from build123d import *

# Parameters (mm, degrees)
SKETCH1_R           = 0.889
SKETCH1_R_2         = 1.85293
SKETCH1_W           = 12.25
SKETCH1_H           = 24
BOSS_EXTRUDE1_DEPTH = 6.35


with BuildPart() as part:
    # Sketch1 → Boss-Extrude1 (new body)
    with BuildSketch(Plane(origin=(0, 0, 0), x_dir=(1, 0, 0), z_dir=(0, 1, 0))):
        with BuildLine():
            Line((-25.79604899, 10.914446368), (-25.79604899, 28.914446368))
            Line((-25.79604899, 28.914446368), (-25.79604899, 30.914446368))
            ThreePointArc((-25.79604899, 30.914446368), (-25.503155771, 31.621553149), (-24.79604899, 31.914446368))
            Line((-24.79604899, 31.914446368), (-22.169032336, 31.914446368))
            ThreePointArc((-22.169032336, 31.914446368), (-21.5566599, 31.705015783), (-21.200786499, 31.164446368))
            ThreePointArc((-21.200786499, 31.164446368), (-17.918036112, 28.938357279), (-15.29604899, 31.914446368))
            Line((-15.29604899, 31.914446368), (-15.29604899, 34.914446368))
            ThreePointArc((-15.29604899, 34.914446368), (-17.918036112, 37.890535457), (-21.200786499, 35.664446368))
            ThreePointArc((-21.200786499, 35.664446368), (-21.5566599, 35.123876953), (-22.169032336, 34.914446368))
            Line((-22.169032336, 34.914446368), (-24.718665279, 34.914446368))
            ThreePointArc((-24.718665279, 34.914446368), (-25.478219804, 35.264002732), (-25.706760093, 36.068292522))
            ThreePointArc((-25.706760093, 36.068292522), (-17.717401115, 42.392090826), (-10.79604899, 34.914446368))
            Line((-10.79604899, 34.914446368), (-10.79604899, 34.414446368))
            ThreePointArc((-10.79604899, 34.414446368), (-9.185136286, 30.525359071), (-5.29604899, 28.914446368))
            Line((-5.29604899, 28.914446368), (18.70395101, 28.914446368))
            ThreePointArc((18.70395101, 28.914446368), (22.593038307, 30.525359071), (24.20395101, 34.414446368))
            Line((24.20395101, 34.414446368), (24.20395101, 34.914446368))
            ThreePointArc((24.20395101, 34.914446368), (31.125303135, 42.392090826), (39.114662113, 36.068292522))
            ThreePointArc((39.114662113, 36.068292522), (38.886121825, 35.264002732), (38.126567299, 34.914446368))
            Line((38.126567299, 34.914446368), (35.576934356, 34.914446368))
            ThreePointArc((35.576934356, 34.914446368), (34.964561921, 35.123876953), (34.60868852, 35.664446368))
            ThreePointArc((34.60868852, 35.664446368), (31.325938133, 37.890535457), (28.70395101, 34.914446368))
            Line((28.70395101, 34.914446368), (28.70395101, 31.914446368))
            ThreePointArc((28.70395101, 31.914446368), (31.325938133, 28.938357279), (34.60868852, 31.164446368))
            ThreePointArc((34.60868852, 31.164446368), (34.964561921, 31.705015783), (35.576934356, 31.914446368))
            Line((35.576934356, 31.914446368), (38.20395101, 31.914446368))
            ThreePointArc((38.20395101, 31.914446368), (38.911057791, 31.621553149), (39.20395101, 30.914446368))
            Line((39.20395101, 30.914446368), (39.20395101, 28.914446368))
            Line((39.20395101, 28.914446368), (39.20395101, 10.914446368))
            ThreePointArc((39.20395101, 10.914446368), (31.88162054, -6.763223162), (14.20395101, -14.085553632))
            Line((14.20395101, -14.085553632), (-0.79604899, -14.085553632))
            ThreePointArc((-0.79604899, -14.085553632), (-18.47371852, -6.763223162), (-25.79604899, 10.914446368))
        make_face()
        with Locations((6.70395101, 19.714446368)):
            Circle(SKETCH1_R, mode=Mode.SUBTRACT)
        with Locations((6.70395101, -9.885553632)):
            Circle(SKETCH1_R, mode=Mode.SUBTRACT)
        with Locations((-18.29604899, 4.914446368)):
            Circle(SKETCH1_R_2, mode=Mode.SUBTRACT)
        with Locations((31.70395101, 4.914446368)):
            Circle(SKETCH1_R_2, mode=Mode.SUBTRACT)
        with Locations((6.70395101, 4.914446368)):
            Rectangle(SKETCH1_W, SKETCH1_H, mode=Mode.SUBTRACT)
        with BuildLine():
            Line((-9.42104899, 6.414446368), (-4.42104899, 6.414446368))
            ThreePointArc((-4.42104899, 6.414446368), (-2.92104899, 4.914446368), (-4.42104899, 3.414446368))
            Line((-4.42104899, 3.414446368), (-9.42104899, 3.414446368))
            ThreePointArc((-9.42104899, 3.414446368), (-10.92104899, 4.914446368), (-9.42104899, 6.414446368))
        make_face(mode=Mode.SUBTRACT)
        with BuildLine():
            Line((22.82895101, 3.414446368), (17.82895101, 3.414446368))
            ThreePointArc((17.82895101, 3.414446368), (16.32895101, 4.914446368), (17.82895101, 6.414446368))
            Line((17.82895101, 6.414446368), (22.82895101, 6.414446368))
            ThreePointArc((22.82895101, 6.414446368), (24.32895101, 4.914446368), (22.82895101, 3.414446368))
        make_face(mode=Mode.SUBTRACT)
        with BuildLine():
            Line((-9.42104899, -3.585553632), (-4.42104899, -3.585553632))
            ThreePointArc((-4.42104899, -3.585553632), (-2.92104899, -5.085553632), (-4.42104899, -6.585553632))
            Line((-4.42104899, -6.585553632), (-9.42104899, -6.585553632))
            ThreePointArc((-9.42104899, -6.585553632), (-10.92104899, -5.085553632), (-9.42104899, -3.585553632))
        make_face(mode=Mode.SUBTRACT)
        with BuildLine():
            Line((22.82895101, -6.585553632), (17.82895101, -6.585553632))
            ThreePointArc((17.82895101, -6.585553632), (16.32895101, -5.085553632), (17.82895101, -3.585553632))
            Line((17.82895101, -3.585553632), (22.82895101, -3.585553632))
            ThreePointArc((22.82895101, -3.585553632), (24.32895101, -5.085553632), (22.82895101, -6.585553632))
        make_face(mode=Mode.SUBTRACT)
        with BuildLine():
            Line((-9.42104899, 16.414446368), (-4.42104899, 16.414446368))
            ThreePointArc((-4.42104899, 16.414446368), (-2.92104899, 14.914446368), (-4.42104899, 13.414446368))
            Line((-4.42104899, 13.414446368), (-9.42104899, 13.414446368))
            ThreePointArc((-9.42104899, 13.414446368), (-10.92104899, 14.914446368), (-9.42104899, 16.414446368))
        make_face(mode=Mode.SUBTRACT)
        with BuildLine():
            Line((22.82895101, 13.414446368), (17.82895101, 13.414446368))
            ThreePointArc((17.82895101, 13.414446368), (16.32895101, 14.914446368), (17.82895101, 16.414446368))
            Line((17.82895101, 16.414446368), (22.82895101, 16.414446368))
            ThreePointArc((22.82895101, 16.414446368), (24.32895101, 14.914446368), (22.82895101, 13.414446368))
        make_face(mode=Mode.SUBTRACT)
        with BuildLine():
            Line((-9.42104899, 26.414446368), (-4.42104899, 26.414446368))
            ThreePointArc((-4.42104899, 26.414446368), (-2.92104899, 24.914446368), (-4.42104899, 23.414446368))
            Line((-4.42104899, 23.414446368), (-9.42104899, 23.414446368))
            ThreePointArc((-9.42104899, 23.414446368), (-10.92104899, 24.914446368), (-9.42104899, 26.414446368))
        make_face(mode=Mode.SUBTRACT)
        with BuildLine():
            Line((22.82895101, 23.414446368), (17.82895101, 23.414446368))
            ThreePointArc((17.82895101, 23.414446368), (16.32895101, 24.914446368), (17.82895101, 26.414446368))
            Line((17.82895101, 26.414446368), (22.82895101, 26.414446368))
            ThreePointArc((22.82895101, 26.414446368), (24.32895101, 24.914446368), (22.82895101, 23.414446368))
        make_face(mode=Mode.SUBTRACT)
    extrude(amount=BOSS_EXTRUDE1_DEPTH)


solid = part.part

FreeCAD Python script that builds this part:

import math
import FreeCAD as App
import Part
import Sketcher

V = App.Vector
Q = App.Units.Quantity


def add_polygon(sketch, points):
    """Adds a closed chain of lines whose ends are joined by coincident constraints."""
    first, n = sketch.GeometryCount, len(points)
    for a, b in zip(points, points[1:] + points[:1]):
        sketch.addGeometry(Part.LineSegment(App.Vector(*a, 0), App.Vector(*b, 0)), False)
    for i in range(n):
        sketch.addConstraint(Sketcher.Constraint("Coincident", first + i, 2, first + (i + 1) % n, 1))

doc = App.newDocument("Part")
body = doc.addObject("PartDesign::Body", "Body")

# Sketch on XZ plane
sketch1 = body.newObject("Sketcher::SketchObject", "Sketch")
sketch1.AttachmentSupport = (doc.getObject("XZ_Plane"), [""])
sketch1.MapMode = "FlatFace"
sketch1.addGeometry(Part.LineSegment(V(-25.8, -30.9, 0), V(-25.8, -10.9, 0)), False)  # 0
sketch1.addGeometry(Part.ArcOfCircle(Part.Circle(V(-0.8, -10.9, 0), V(0, 0, 1), 25), math.radians(90), math.radians(180)), False)  # 1
sketch1.addGeometry(Part.LineSegment(V(-0.8, 14.1, 0), V(14.2, 14.1, 0)), False)  # 2
sketch1.addGeometry(Part.ArcOfCircle(Part.Circle(V(14.2, -10.9, 0), V(0, 0, 1), 25), math.radians(0), math.radians(90)), False)  # 3
sketch1.addGeometry(Part.LineSegment(V(39.2, -10.9, 0), V(39.2, -30.9, 0)), False)  # 4
sketch1.addGeometry(Part.ArcOfCircle(Part.Circle(V(38.2, -30.9, 0), V(0, 0, 1), 1), math.radians(-90), math.radians(0)), False)  # 5
sketch1.addGeometry(Part.LineSegment(V(38.2, -31.9, 0), V(35.6, -31.9, 0)), False)  # 6
sketch1.addGeometry(Part.ArcOfCircle(Part.Circle(V(35.6, -30.9, 0), V(0, 0, 1), 1), math.radians(-166), math.radians(-90)), False)  # 7
sketch1.addGeometry(Part.ArcOfCircle(Part.Circle(V(31.7, -31.9, 0), V(0, 0, 1), 3), math.radians(14), math.radians(180)), False)  # 8
sketch1.addGeometry(Part.LineSegment(V(28.7, -31.9, 0), V(28.7, -34.9, 0)), False)  # 9
sketch1.addGeometry(Part.ArcOfCircle(Part.Circle(V(31.7, -34.9, 0), V(0, 0, 1), 3), math.radians(180), math.radians(346)), False)  # 10
sketch1.addGeometry(Part.ArcOfCircle(Part.Circle(V(35.6, -35.9, 0), V(0, 0, 1), 1), math.radians(90), math.radians(166)), False)  # 11
sketch1.addGeometry(Part.LineSegment(V(35.6, -34.9, 0), V(38.1, -34.9, 0)), False)  # 12
sketch1.addGeometry(Part.ArcOfCircle(Part.Circle(V(38.1, -35.9, 0), V(0, 0, 1), 1), math.radians(-9), math.radians(90)), False)  # 13
sketch1.addGeometry(Part.ArcOfCircle(Part.Circle(V(31.7, -34.9, 0), V(0, 0, 1), 7.5), math.radians(180), math.radians(351)), False)  # 14
sketch1.addGeometry(Part.LineSegment(V(24.2, -34.9, 0), V(24.2, -34.4, 0)), False)  # 15
sketch1.addGeometry(Part.ArcOfCircle(Part.Circle(V(18.7, -34.4, 0), V(0, 0, 1), 5.5), math.radians(0), math.radians(90)), False)  # 16
sketch1.addGeometry(Part.LineSegment(V(18.7, -28.9, 0), V(-5.3, -28.9, 0)), False)  # 17
sketch1.addGeometry(Part.ArcOfCircle(Part.Circle(V(-5.3, -34.4, 0), V(0, 0, 1), 5.5), math.radians(90), math.radians(180)), False)  # 18
sketch1.addGeometry(Part.LineSegment(V(-10.8, -34.4, 0), V(-10.8, -34.9, 0)), False)  # 19
sketch1.addGeometry(Part.ArcOfCircle(Part.Circle(V(-18.3, -34.9, 0), V(0, 0, 1), 7.5), math.radians(-171), math.radians(0)), False)  # 20
sketch1.addGeometry(Part.ArcOfCircle(Part.Circle(V(-24.7, -35.9, 0), V(0, 0, 1), 1), math.radians(90), math.radians(189)), False)  # 21
sketch1.addGeometry(Part.LineSegment(V(-24.7, -34.9, 0), V(-22.2, -34.9, 0)), False)  # 22
sketch1.addGeometry(Part.ArcOfCircle(Part.Circle(V(-22.2, -35.9, 0), V(0, 0, 1), 1), math.radians(14), math.radians(90)), False)  # 23
sketch1.addGeometry(Part.ArcOfCircle(Part.Circle(V(-18.3, -34.9, 0), V(0, 0, 1), 3), math.radians(-166), math.radians(0)), False)  # 24
sketch1.addGeometry(Part.LineSegment(V(-15.3, -34.9, 0), V(-15.3, -31.9, 0)), False)  # 25
sketch1.addGeometry(Part.ArcOfCircle(Part.Circle(V(-18.3, -31.9, 0), V(0, 0, 1), 3), math.radians(0), math.radians(166)), False)  # 26
sketch1.addGeometry(Part.ArcOfCircle(Part.Circle(V(-22.2, -30.9, 0), V(0, 0, 1), 1), math.radians(-90), math.radians(-14)), False)  # 27
sketch1.addGeometry(Part.LineSegment(V(-22.2, -31.9, 0), V(-24.8, -31.9, 0)), False)  # 28
sketch1.addGeometry(Part.ArcOfCircle(Part.Circle(V(-24.8, -30.9, 0), V(0, 0, 1), 1), math.radians(-180), math.radians(-90)), False)  # 29
sketch1.addGeometry(Part.LineSegment(V(22.8, 6.6, 0), V(17.8, 6.6, 0)), False)  # 30
sketch1.addGeometry(Part.ArcOfCircle(Part.Circle(V(17.8, 5.1, 0), V(0, 0, 1), 1.5), math.radians(90), math.radians(270)), False)  # 31
sketch1.addGeometry(Part.LineSegment(V(17.8, 3.6, 0), V(22.8, 3.6, 0)), False)  # 32
sketch1.addGeometry(Part.ArcOfCircle(Part.Circle(V(22.8, 5.1, 0), V(0, 0, 1), 1.5), math.radians(-90), math.radians(90)), False)  # 33
sketch1.addGeometry(Part.Circle(V(6.7, 9.9, 0), V(0, 0, 1), 0.9), False)  # 34
sketch1.addGeometry(Part.Circle(V(31.7, -4.9, 0), V(0, 0, 1), 1.9), False)  # 35
sketch1.addGeometry(Part.LineSegment(V(22.8, -3.4, 0), V(17.8, -3.4, 0)), False)  # 36
sketch1.addGeometry(Part.ArcOfCircle(Part.Circle(V(17.8, -4.9, 0), V(0, 0, 1), 1.5), math.radians(90), math.radians(270)), False)  # 37
sketch1.addGeometry(Part.LineSegment(V(17.8, -6.4, 0), V(22.8, -6.4, 0)), False)  # 38
sketch1.addGeometry(Part.ArcOfCircle(Part.Circle(V(22.8, -4.9, 0), V(0, 0, 1), 1.5), math.radians(-90), math.radians(90)), False)  # 39
add_polygon(sketch1, [(0.6, 7.1), (0.6, -16.9), (12.8, -16.9), (12.8, 7.1)])  # lines 40-43
sketch1.addGeometry(Part.LineSegment(V(-9.4, 3.6, 0), V(-4.4, 3.6, 0)), False)  # 44
sketch1.addGeometry(Part.ArcOfCircle(Part.Circle(V(-4.4, 5.1, 0), V(0, 0, 1), 1.5), math.radians(-90), math.radians(90)), False)  # 45
sketch1.addGeometry(Part.LineSegment(V(-4.4, 6.6, 0), V(-9.4, 6.6, 0)), False)  # 46
sketch1.addGeometry(Part.ArcOfCircle(Part.Circle(V(-9.4, 5.1, 0), V(0, 0, 1), 1.5), math.radians(90), math.radians(270)), False)  # 47
sketch1.addGeometry(Part.LineSegment(V(-9.4, -6.4, 0), V(-4.4, -6.4, 0)), False)  # 48
sketch1.addGeometry(Part.ArcOfCircle(Part.Circle(V(-4.4, -4.9, 0), V(0, 0, 1), 1.5), math.radians(-90), math.radians(90)), False)  # 49
sketch1.addGeometry(Part.LineSegment(V(-4.4, -3.4, 0), V(-9.4, -3.4, 0)), False)  # 50
sketch1.addGeometry(Part.ArcOfCircle(Part.Circle(V(-9.4, -4.9, 0), V(0, 0, 1), 1.5), math.radians(90), math.radians(270)), False)  # 51
sketch1.addGeometry(Part.Circle(V(-18.3, -4.9, 0), V(0, 0, 1), 1.9), False)  # 52
sketch1.addGeometry(Part.LineSegment(V(22.8, -13.4, 0), V(17.8, -13.4, 0)), False)  # 53
sketch1.addGeometry(Part.ArcOfCircle(Part.Circle(V(17.8, -14.9, 0), V(0, 0, 1), 1.5), math.radians(90), math.radians(270)), False)  # 54
sketch1.addGeometry(Part.LineSegment(V(17.8, -16.4, 0), V(22.8, -16.4, 0)), False)  # 55
sketch1.addGeometry(Part.ArcOfCircle(Part.Circle(V(22.8, -14.9, 0), V(0, 0, 1), 1.5), math.radians(-90), math.radians(90)), False)  # 56
sketch1.addGeometry(Part.LineSegment(V(22.8, -23.4, 0), V(17.8, -23.4, 0)), False)  # 57
sketch1.addGeometry(Part.ArcOfCircle(Part.Circle(V(17.8, -24.9, 0), V(0, 0, 1), 1.5), math.radians(90), math.radians(270)), False)  # 58
sketch1.addGeometry(Part.LineSegment(V(17.8, -26.4, 0), V(22.8, -26.4, 0)), False)  # 59
sketch1.addGeometry(Part.ArcOfCircle(Part.Circle(V(22.8, -24.9, 0), V(0, 0, 1), 1.5), math.radians(-90), math.radians(90)), False)  # 60
sketch1.addGeometry(Part.Circle(V(6.7, -19.7, 0), V(0, 0, 1), 0.9), False)  # 61
sketch1.addGeometry(Part.LineSegment(V(-9.4, -16.4, 0), V(-4.4, -16.4, 0)), False)  # 62
sketch1.addGeometry(Part.ArcOfCircle(Part.Circle(V(-4.4, -14.9, 0), V(0, 0, 1), 1.5), math.radians(-90), math.radians(90)), False)  # 63
sketch1.addGeometry(Part.LineSegment(V(-4.4, -13.4, 0), V(-9.4, -13.4, 0)), False)  # 64
sketch1.addGeometry(Part.ArcOfCircle(Part.Circle(V(-9.4, -14.9, 0), V(0, 0, 1), 1.5), math.radians(90), math.radians(270)), False)  # 65
sketch1.addGeometry(Part.LineSegment(V(-9.4, -26.4, 0), V(-4.4, -26.4, 0)), False)  # 66
sketch1.addGeometry(Part.ArcOfCircle(Part.Circle(V(-4.4, -24.9, 0), V(0, 0, 1), 1.5), math.radians(-90), math.radians(90)), False)  # 67
sketch1.addGeometry(Part.LineSegment(V(-4.4, -23.4, 0), V(-9.4, -23.4, 0)), False)  # 68
sketch1.addGeometry(Part.ArcOfCircle(Part.Circle(V(-9.4, -24.9, 0), V(0, 0, 1), 1.5), math.radians(90), math.radians(270)), False)  # 69
sketch1.addConstraint([
    Sketcher.Constraint("Tangent", 0, 2, 1, 2),
    Sketcher.Constraint("Tangent", 1, 1, 2, 1),
    Sketcher.Constraint("Tangent", 2, 2, 3, 2),
    Sketcher.Constraint("Tangent", 3, 1, 4, 1),
    Sketcher.Constraint("Tangent", 4, 2, 5, 2),
    Sketcher.Constraint("Tangent", 5, 1, 6, 1),
    Sketcher.Constraint("Tangent", 6, 2, 7, 2),
    Sketcher.Constraint("Tangent", 7, 1, 8, 1),
    Sketcher.Constraint("Tangent", 8, 2, 9, 1),
    Sketcher.Constraint("Tangent", 9, 2, 10, 1),
    Sketcher.Constraint("Tangent", 10, 2, 11, 2),
    Sketcher.Constraint("Tangent", 11, 1, 12, 1),
    Sketcher.Constraint("Tangent", 12, 2, 13, 2),
    Sketcher.Constraint("Tangent", 13, 1, 14, 2),
    Sketcher.Constraint("Tangent", 14, 1, 15, 1),
    Sketcher.Constraint("Tangent", 15, 2, 16, 1),
    Sketcher.Constraint("Tangent", 16, 2, 17, 1),
    Sketcher.Constraint("Tangent", 17, 2, 18, 1),
    Sketcher.Constraint("Tangent", 18, 2, 19, 1),
    Sketcher.Constraint("Tangent", 19, 2, 20, 2),
    Sketcher.Constraint("Tangent", 20, 1, 21, 2),
    Sketcher.Constraint("Tangent", 21, 1, 22, 1),
    Sketcher.Constraint("Tangent", 22, 2, 23, 2),
    Sketcher.Constraint("Tangent", 23, 1, 24, 1),
    Sketcher.Constraint("Tangent", 24, 2, 25, 1),
    Sketcher.Constraint("Tangent", 25, 2, 26, 1),
    Sketcher.Constraint("Tangent", 26, 2, 27, 2),
    Sketcher.Constraint("Tangent", 27, 1, 28, 1),
    Sketcher.Constraint("Tangent", 28, 2, 29, 2),
    Sketcher.Constraint("Tangent", 29, 1, 0, 1),
    Sketcher.Constraint("Tangent", 30, 2, 31, 1),
    Sketcher.Constraint("Tangent", 31, 2, 32, 1),
    Sketcher.Constraint("Tangent", 32, 2, 33, 1),
    Sketcher.Constraint("Tangent", 33, 2, 30, 1),
    Sketcher.Constraint("Tangent", 36, 2, 37, 1),
    Sketcher.Constraint("Tangent", 37, 2, 38, 1),
    Sketcher.Constraint("Tangent", 38, 2, 39, 1),
    Sketcher.Constraint("Tangent", 39, 2, 36, 1),
    Sketcher.Constraint("Tangent", 44, 2, 45, 1),
    Sketcher.Constraint("Tangent", 45, 2, 46, 1),
    Sketcher.Constraint("Tangent", 46, 2, 47, 1),
    Sketcher.Constraint("Tangent", 47, 2, 44, 1),
    Sketcher.Constraint("Tangent", 48, 2, 49, 1),
    Sketcher.Constraint("Tangent", 49, 2, 50, 1),
    Sketcher.Constraint("Tangent", 50, 2, 51, 1),
    Sketcher.Constraint("Tangent", 51, 2, 48, 1),
    Sketcher.Constraint("Tangent", 53, 2, 54, 1),
    Sketcher.Constraint("Tangent", 54, 2, 55, 1),
    Sketcher.Constraint("Tangent", 55, 2, 56, 1),
    Sketcher.Constraint("Tangent", 56, 2, 53, 1),
    Sketcher.Constraint("Tangent", 57, 2, 58, 1),
    Sketcher.Constraint("Tangent", 58, 2, 59, 1),
    Sketcher.Constraint("Tangent", 59, 2, 60, 1),
    Sketcher.Constraint("Tangent", 60, 2, 57, 1),
    Sketcher.Constraint("Tangent", 62, 2, 63, 1),
    Sketcher.Constraint("Tangent", 63, 2, 64, 1),
    Sketcher.Constraint("Tangent", 64, 2, 65, 1),
    Sketcher.Constraint("Tangent", 65, 2, 62, 1),
    Sketcher.Constraint("Tangent", 66, 2, 67, 1),
    Sketcher.Constraint("Tangent", 67, 2, 68, 1),
    Sketcher.Constraint("Tangent", 68, 2, 69, 1),
    Sketcher.Constraint("Tangent", 69, 2, 66, 1),
    Sketcher.Constraint("Vertical", 0),
    Sketcher.Constraint("Horizontal", 2),
    Sketcher.Constraint("Vertical", 4),
    Sketcher.Constraint("Horizontal", 6),
    Sketcher.Constraint("Vertical", 9),
    Sketcher.Constraint("Horizontal", 12),
    Sketcher.Constraint("Vertical", 15),
    Sketcher.Constraint("Horizontal", 17),
    Sketcher.Constraint("Vertical", 19),
    Sketcher.Constraint("Horizontal", 22),
    Sketcher.Constraint("Vertical", 25),
    Sketcher.Constraint("Horizontal", 28),
    Sketcher.Constraint("Horizontal", 30),
    Sketcher.Constraint("Horizontal", 32),
    Sketcher.Constraint("Horizontal", 36),
    Sketcher.Constraint("Horizontal", 38),
    Sketcher.Constraint("Vertical", 40),
    Sketcher.Constraint("Horizontal", 41),
    Sketcher.Constraint("Vertical", 42),
    Sketcher.Constraint("Horizontal", 43),
    Sketcher.Constraint("Horizontal", 44),
    Sketcher.Constraint("Horizontal", 46),
    Sketcher.Constraint("Horizontal", 48),
    Sketcher.Constraint("Horizontal", 50),
    Sketcher.Constraint("Horizontal", 53),
    Sketcher.Constraint("Horizontal", 55),
    Sketcher.Constraint("Horizontal", 57),
    Sketcher.Constraint("Horizontal", 59),
    Sketcher.Constraint("Horizontal", 62),
    Sketcher.Constraint("Horizontal", 64),
    Sketcher.Constraint("Horizontal", 66),
    Sketcher.Constraint("Horizontal", 68),
    Sketcher.Constraint("Coincident", 14, 3, 10, 3),
    Sketcher.Constraint("Coincident", 24, 3, 20, 3),
    Sketcher.Constraint("Equal", 1, 3),
    Sketcher.Constraint("Equal", 5, 7),
    Sketcher.Constraint("Equal", 8, 10),
    Sketcher.Constraint("Equal", 7, 11),
    Sketcher.Constraint("Equal", 11, 13),
    Sketcher.Constraint("Equal", 16, 18),
    Sketcher.Constraint("Equal", 14, 20),
    Sketcher.Constraint("Equal", 13, 21),
    Sketcher.Constraint("Equal", 21, 23),
    Sketcher.Constraint("Equal", 10, 24),
    Sketcher.Constraint("Equal", 24, 26),
    Sketcher.Constraint("Equal", 23, 27),
    Sketcher.Constraint("Equal", 27, 29),
    Sketcher.Constraint("Equal", 33, 37),
    Sketcher.Constraint("Equal", 39, 45),
    Sketcher.Constraint("Equal", 47, 49),
    Sketcher.Constraint("Equal", 35, 52),
    Sketcher.Constraint("Equal", 51, 54),
    Sketcher.Constraint("Equal", 56, 58),
    Sketcher.Constraint("Equal", 34, 61),
    Sketcher.Constraint("Equal", 60, 63),
    Sketcher.Constraint("Equal", 65, 67),
    Sketcher.Constraint("Horizontal", 14, 3, 20, 3),
    Sketcher.Constraint("Horizontal", 13, 3, 21, 3),
    Sketcher.Constraint("Horizontal", 8, 3, 26, 3),
    Sketcher.Constraint("Horizontal", 7, 3, 27, 3),
    Sketcher.Constraint("Horizontal", 35, 3, 37, 3),
    Sketcher.Constraint("Horizontal", 33, 3, 45, 3),
    Sketcher.Constraint("Horizontal", 39, 3, 49, 3),
    Sketcher.Constraint("Horizontal", 51, 3, 52, 3),
    Sketcher.Constraint("Horizontal", 56, 3, 63, 3),
    Sketcher.Constraint("Horizontal", 60, 3, 67, 3),
    Sketcher.Constraint("Horizontal", 26, 3, 5, 1),
    Sketcher.Constraint("Horizontal", 9, 2, 11, 1),
    Sketcher.Constraint("Vertical", 14, 3, 35, 3),
    Sketcher.Constraint("Vertical", 31, 3, 37, 3),
    Sketcher.Constraint("Vertical", 33, 3, 39, 3),
    Sketcher.Constraint("Vertical", 45, 3, 49, 3),
    Sketcher.Constraint("Vertical", 47, 3, 51, 3),
    Sketcher.Constraint("Vertical", 26, 3, 52, 3),
    Sketcher.Constraint("Vertical", 37, 3, 54, 3),
    Sketcher.Constraint("Vertical", 39, 3, 56, 3),
    Sketcher.Constraint("Vertical", 54, 3, 58, 3),
    Sketcher.Constraint("Vertical", 56, 3, 60, 3),
    Sketcher.Constraint("Vertical", 34, 3, 61, 3),
    Sketcher.Constraint("Vertical", 49, 3, 63, 3),
    Sketcher.Constraint("Vertical", 51, 3, 65, 3),
    Sketcher.Constraint("Vertical", 63, 3, 67, 3),
    Sketcher.Constraint("Vertical", 65, 3, 69, 3),
    Sketcher.Constraint("Equal", 6, 28),
    Sketcher.Constraint("Equal", 38, 44),
    Sketcher.Constraint("Equal", 17, 40),
    Sketcher.Constraint("Radius", 1, Q("25 mm")),
    Sketcher.Constraint("Radius", 5, Q("1 mm")),
    Sketcher.Constraint("Radius", 8, Q("3 mm")),
    Sketcher.Constraint("Radius", 14, Q("7.5 mm")),
    Sketcher.Constraint("Radius", 16, Q("5.5 mm")),
    Sketcher.Constraint("Radius", 31, Q("1.5 mm")),
    Sketcher.Constraint("DistanceX", 2, 1, 2, 2, Q("15 mm")),
    Sketcher.Constraint("DistanceX", 17, 2, 17, 1, Q("24 mm")),
    Sketcher.Constraint("DistanceX", 30, 2, 30, 1, Q("5 mm")),
    Sketcher.Constraint("DistanceY", 0, 1, 0, 2, Q("20 mm")),
    Sketcher.Constraint("DistanceY", 9, 2, 9, 1, Q("3 mm")),
    Sketcher.Constraint("Diameter", 34, Q("1.778 mm")),
    Sketcher.Constraint("DistanceY", 15, 1, 15, 2, Q("0.5 mm")),
    Sketcher.Constraint("DistanceX", 41, 1, 41, 2, Q("12.25 mm")),
    Sketcher.Constraint("Diameter", 35, Q("3.70586 mm")),
    Sketcher.Constraint("DistanceX", 1, 3, -1, 1, Q("0.796049 mm")),
    Sketcher.Constraint("DistanceX", -1, 1, 31, 3, Q("17.828951 mm")),
    Sketcher.Constraint("DistanceX", -1, 1, 34, 3, Q("6.703951 mm")),
    Sketcher.Constraint("DistanceX", 45, 3, -1, 1, Q("4.421049 mm")),
    Sketcher.Constraint("DistanceX", -1, 1, 40, 2, Q("0.578951 mm")),
    Sketcher.Constraint("DistanceY", 1, 3, -1, 1, Q("10.914446 mm")),
    Sketcher.Constraint("DistanceY", -1, 1, 31, 3, Q("5.085554 mm")),
    Sketcher.Constraint("DistanceY", -1, 1, 34, 3, Q("9.885554 mm")),
    Sketcher.Constraint("DistanceY", 35, 3, -1, 1, Q("4.914446 mm")),
    Sketcher.Constraint("DistanceY", 54, 3, -1, 1, Q("14.914446 mm")),
    Sketcher.Constraint("DistanceY", 58, 3, -1, 1, Q("24.914446 mm")),
    Sketcher.Constraint("DistanceY", 61, 3, -1, 1, Q("19.714446 mm")),
    Sketcher.Constraint("DistanceY", 40, 2, -1, 1, Q("16.914446 mm")),
])
pad1 = body.newObject("PartDesign::Pad", "Pad")
pad1.Profile = sketch1
pad1.Length = 6.35
pad1.Reversed = True

doc.recompute()
